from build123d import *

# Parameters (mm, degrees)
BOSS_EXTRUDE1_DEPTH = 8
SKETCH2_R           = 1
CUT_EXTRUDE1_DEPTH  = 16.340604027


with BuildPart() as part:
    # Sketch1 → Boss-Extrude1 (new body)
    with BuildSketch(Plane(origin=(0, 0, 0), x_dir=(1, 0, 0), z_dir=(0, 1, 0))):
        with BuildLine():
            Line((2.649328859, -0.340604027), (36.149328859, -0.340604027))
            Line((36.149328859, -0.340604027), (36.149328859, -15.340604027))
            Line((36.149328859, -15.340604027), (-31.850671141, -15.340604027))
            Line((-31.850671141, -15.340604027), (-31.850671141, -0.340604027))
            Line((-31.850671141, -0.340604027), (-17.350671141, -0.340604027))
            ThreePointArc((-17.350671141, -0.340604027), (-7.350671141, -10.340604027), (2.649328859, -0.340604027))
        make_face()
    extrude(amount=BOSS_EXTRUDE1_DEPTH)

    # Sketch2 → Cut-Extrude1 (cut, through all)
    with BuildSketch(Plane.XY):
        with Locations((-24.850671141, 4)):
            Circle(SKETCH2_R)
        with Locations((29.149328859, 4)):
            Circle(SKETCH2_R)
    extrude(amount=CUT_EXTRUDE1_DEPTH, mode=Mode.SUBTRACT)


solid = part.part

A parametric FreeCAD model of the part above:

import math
import FreeCAD as App
import Part
import Sketcher
from FreeCAD import Vector
Q = App.Units.Quantity

doc = App.newDocument("Part")
body = doc.addObject("PartDesign::Body", "Body")

# Sketch on XZ plane
sketch1 = body.newObject("Sketcher::SketchObject", "Sketch")
sketch1.AttachmentSupport = (doc.getObject("XZ_Plane"), [""])
sketch1.MapMode = "FlatFace"
sketch1.addGeometry([
    Part.LineSegment(Vector(36.149329, 0.340604, 0), Vector(2.649329, 0.340604, 0)),  # 0
    Part.ArcOfCircle(Part.Circle(Vector(-7.350671, 0.340604, 0), Vector(0, 0, 1), 10), math.radians(0), math.radians(180)),  # 1
    Part.LineSegment(Vector(-17.350671, 0.340604, 0), Vector(-31.850671, 0.340604, 0)),  # 2
    Part.LineSegment(Vector(-31.850671, 0.340604, 0), Vector(-31.850671, 15.340604, 0)),  # 3
    Part.LineSegment(Vector(-31.850671, 15.340604, 0), Vector(36.149329, 15.340604, 0)),  # 4
    Part.LineSegment(Vector(36.149329, 15.340604, 0), Vector(36.149329, 0.340604, 0)),  # 5
], False)
sketch1.addConstraint([
    Sketcher.Constraint("Coincident", 0, 2, 1, 1),
    Sketcher.Constraint("Coincident", 1, 2, 2, 1),
    Sketcher.Constraint("Coincident", 2, 2, 3, 1),
    Sketcher.Constraint("Coincident", 3, 2, 4, 1),
    Sketcher.Constraint("Coincident", 4, 2, 5, 1),
    Sketcher.Constraint("Coincident", 5, 2, 0, 1),
    Sketcher.Constraint("Horizontal", 0),
    Sketcher.Constraint("Horizontal", 2),
    Sketcher.Constraint("Vertical", 3),
    Sketcher.Constraint("Horizontal", 4),
    Sketcher.Constraint("Vertical", 5),
    Sketcher.Constraint("Horizontal", 1, 3, 0, 2),
    Sketcher.Constraint("Horizontal", 0, 2, 1, 2),
    Sketcher.Constraint("Radius", 1, Q("10 mm")),
    Sketcher.Constraint("DistanceX", 4, 1, 4, 2, Q("68 mm")),
    Sketcher.Constraint("DistanceY", 3, 1, 3, 2, Q("15 mm")),
    Sketcher.Constraint("DistanceX", 0, 2, 0, 1, Q("33.5 mm")),
    Sketcher.Constraint("DistanceX", 1, 3, -1, 1, Q("7.350671 mm")),
    Sketcher.Constraint("DistanceY", -1, 1, 1, 3, Q("0.340604 mm")),
])
pad1 = body.newObject("PartDesign::Pad", "Pad")
pad1.Profile = sketch1
pad1.Length = 8
pad1.Reversed = True

# Sketch on XY plane
sketch2 = body.newObject("Sketcher::SketchObject", "Sketch001")
sketch2.AttachmentSupport = (doc.getObject("XY_Plane"), [""])
sketch2.MapMode = "FlatFace"
sketch2.addGeometry([
    Part.Circle(Vector(-24.850671, 4, 0), Vector(0, 0, 1), 1),
    Part.Circle(Vector(29.149329, 4, 0), Vector(0, 0, 1), 1),
], False)
sketch2.addConstraint([
    Sketcher.Constraint("Equal", 0, 1),
    Sketcher.Constraint("Horizontal", 0, 3, 1, 3),
    Sketcher.Constraint("Diameter", 0, Q("2 mm")),
    Sketcher.Constraint("DistanceY", -1, 1, 0, 3, Q("4 mm")),
    Sketcher.Constraint("DistanceX", 0, 3, 1, 3, Q("54 mm")),
    Sketcher.Constraint("DistanceX", 0, 3, -1, 1, Q("24.850671 mm")),
])
pocket1 = body.newObject("PartDesign::Pocket", "Pocket")
pocket1.Profile = sketch2
pocket1.Type = "ThroughAll"
pocket1.Reversed = True

doc.recompute()
